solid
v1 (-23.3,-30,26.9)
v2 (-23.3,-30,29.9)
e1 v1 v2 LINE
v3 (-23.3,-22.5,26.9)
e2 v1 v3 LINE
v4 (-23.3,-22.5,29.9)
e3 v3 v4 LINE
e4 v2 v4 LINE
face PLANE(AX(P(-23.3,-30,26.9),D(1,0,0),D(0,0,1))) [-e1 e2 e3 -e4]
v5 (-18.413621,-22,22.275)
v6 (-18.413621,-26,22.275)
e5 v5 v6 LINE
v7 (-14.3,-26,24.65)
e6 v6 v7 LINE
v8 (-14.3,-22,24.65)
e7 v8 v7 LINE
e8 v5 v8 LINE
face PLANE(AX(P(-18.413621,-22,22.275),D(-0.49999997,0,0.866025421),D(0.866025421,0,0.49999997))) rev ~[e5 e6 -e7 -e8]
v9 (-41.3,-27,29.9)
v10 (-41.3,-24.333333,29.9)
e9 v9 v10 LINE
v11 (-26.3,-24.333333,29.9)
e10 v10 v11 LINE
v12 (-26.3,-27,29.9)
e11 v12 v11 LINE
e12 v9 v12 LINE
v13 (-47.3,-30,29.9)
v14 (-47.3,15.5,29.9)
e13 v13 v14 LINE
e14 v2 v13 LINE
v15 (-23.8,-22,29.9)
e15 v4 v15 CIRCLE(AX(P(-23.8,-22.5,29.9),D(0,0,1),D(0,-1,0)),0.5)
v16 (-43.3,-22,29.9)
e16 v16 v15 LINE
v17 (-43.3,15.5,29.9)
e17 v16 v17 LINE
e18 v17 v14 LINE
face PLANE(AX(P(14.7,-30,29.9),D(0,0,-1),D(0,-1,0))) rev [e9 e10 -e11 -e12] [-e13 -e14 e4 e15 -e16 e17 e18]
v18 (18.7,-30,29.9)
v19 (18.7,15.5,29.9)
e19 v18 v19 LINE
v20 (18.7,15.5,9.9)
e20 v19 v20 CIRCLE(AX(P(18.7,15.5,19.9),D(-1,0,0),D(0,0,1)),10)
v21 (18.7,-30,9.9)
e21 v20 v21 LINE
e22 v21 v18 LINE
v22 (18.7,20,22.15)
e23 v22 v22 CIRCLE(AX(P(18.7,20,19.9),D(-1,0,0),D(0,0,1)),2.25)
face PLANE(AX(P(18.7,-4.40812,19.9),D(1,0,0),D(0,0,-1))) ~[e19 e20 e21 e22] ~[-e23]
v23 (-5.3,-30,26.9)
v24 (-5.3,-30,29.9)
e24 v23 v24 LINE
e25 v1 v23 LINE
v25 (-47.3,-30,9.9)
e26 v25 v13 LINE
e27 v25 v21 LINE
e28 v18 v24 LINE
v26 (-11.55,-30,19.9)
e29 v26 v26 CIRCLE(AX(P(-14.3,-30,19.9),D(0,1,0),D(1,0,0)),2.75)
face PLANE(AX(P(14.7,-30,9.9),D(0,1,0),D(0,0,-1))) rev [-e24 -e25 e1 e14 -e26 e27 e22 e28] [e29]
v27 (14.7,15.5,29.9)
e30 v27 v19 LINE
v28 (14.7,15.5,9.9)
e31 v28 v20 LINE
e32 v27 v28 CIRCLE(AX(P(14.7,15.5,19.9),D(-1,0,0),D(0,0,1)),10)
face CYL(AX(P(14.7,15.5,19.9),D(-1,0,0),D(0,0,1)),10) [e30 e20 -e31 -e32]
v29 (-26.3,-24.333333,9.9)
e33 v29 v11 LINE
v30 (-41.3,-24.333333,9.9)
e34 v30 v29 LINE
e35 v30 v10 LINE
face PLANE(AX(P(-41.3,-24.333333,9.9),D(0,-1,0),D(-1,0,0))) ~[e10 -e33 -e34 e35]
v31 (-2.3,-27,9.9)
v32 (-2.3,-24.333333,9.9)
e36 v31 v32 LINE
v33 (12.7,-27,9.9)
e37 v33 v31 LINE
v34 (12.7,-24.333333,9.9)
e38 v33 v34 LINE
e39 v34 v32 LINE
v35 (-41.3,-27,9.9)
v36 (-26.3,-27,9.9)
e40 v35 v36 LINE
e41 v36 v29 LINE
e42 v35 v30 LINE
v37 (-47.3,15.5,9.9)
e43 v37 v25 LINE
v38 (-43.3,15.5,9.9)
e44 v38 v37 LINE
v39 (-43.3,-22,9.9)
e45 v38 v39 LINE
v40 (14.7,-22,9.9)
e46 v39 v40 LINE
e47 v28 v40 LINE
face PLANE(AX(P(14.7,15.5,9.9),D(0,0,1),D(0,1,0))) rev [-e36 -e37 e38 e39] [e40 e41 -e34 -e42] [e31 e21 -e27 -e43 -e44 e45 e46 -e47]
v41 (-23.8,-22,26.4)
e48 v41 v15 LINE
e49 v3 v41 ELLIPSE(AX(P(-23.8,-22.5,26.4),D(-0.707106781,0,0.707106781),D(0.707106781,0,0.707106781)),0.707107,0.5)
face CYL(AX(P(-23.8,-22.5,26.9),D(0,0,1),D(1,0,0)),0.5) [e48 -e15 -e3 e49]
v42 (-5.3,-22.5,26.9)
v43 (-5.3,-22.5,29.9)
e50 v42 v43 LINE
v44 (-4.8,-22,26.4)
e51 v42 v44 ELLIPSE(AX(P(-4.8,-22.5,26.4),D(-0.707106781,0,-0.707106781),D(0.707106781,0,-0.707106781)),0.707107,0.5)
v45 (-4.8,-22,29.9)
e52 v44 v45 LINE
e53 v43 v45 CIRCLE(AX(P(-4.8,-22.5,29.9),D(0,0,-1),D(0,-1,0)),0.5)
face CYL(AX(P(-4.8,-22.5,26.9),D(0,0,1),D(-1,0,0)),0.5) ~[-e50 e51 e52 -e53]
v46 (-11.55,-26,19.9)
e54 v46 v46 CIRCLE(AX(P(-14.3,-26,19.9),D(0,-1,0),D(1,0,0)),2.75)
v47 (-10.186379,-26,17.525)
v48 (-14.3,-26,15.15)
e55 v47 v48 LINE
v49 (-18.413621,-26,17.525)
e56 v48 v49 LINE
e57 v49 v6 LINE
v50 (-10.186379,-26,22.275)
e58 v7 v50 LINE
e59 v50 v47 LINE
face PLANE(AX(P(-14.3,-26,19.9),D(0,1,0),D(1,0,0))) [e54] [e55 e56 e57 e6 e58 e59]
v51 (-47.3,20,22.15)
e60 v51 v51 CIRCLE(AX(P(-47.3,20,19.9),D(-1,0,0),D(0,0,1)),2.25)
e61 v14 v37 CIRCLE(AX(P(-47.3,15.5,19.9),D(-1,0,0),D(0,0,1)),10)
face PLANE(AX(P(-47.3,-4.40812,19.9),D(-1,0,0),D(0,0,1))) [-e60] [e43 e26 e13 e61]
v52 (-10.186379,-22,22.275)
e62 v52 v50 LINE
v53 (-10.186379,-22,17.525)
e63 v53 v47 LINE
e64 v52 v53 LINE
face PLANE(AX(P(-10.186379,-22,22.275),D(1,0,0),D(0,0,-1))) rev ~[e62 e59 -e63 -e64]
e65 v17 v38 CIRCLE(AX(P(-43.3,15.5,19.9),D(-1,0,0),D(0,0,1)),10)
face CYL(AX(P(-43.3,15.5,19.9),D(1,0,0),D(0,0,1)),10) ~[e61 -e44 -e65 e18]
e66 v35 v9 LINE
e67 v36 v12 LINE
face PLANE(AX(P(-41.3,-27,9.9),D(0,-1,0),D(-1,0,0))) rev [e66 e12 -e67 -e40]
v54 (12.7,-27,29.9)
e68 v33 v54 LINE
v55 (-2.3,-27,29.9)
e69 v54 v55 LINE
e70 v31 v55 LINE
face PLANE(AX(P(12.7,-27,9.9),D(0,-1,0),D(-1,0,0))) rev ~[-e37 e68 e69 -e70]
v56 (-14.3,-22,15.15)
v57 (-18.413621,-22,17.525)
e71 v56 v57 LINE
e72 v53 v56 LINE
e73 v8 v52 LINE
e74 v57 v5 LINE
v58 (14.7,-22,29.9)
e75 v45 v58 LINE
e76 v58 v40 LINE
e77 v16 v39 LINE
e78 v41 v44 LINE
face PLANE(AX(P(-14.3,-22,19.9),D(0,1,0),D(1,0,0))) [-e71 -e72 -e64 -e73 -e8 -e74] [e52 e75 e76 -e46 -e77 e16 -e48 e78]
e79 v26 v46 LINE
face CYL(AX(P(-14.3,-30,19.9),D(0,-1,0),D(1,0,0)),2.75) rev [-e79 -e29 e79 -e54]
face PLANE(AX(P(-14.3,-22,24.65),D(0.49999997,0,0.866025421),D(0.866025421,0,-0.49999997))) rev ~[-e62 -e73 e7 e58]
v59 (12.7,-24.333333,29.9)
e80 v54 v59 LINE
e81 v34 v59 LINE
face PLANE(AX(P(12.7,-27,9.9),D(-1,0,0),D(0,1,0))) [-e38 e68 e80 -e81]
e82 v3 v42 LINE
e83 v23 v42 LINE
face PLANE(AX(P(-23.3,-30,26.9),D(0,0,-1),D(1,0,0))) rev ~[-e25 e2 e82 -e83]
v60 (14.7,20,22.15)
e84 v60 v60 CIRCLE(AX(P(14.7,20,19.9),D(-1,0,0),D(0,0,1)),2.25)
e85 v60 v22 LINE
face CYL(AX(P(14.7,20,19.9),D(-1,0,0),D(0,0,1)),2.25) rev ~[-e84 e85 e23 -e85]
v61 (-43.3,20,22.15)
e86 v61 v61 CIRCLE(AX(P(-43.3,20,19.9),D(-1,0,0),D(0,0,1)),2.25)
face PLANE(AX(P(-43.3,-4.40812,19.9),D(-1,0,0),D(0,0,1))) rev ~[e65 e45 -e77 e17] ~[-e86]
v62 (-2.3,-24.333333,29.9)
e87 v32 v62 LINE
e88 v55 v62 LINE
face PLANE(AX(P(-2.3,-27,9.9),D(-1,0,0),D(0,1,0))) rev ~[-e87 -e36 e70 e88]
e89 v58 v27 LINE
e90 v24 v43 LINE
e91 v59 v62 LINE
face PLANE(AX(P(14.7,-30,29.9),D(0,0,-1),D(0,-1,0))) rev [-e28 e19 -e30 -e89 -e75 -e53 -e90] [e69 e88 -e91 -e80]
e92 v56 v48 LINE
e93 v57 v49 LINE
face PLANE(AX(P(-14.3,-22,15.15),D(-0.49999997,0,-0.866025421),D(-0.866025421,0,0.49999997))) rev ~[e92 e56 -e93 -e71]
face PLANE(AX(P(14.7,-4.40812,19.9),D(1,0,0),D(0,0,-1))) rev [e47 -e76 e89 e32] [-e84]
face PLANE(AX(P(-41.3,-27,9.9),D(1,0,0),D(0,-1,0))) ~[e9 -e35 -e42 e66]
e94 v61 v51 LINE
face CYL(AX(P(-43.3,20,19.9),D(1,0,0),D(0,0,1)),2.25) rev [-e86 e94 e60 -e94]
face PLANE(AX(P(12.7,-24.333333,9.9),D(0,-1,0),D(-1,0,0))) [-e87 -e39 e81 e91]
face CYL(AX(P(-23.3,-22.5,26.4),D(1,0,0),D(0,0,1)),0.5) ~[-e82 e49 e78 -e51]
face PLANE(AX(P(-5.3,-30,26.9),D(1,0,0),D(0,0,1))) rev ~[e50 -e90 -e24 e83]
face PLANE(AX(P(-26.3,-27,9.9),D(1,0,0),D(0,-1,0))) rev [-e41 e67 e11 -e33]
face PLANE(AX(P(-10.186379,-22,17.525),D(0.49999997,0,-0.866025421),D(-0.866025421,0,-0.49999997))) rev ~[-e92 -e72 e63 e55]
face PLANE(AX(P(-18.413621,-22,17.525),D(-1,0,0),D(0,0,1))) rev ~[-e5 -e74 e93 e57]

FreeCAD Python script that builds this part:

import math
import FreeCAD as App
import Part
import Sketcher
Q = App.Units.Quantity


def edges_at(feature, points):
    """Names of the edges that pass closest to the given points."""
    edges = feature.Shape.Edges
    near = lambda p: min(range(len(edges)), key=lambda i: edges[i].distToShape(Part.Vertex(*p))[0])
    return sorted({f"Edge{near(p) + 1}" for p in points})

doc = App.newDocument("Part")
params = doc.addObject("Spreadsheet::Sheet", "Params")
for row, (alias, value) in enumerate([
    ("sketch1_diameter", "5.5 mm"),
    ("sketch1_width", "58 mm"),
    ("sketch1_height", "20 mm"),
    ("pad1_length", "8 mm"),
    ("sketch2_radius", "10 mm"),
    ("sketch2_diameter", "4.5 mm"),
    ("sketch2_width", "45.5 mm"),
    ("pad2_length", "4 mm"),
    ("sketch3_height", "4.75 mm"),
    ("pocket1_length", "4 mm"),
    ("sketch4_width", "15 mm"),
    ("pocket2_length", "20 mm"),
    ("sketch5_width", "18 mm"),
    ("sketch5_height", "3 mm"),
    ("pocket3_length", "8 mm"),
    ("fillet_radius", "0.5 mm"),
], start=1):
    params.set(f"A{row}", alias)
    params.set(f"B{row}", "=" + value)
    params.setAlias(f"B{row}", alias)

body = doc.addObject("PartDesign::Body", "Body")

# Sketch on XZ plane
sketch1 = body.newObject("Sketcher::SketchObject", "Sketch")
sketch1.AttachmentSupport = (doc.getObject("XZ_Plane"), [""])
sketch1.MapMode = "FlatFace"
sketch1.addGeometry([
    Part.LineSegment(App.Vector(-29, 10, 0), App.Vector(-29, -10, 0)),  # 0
    Part.LineSegment(App.Vector(-29, -10, 0), App.Vector(29, -10, 0)),  # 1
    Part.LineSegment(App.Vector(29, -10, 0), App.Vector(29, 10, 0)),  # 2
    Part.LineSegment(App.Vector(29, 10, 0), App.Vector(-29, 10, 0)),  # 3
    Part.Circle(App.Vector(0, 0, 0), App.Vector(0, 0, 1), 2.8),  # 4
], False)
sketch1.addConstraint([
    Sketcher.Constraint("Coincident", 0, 2, 1, 1),
    Sketcher.Constraint("Coincident", 1, 2, 2, 1),
    Sketcher.Constraint("Coincident", 2, 2, 3, 1),
    Sketcher.Constraint("Coincident", 3, 2, 0, 1),
    Sketcher.Constraint("Vertical", 0),
    Sketcher.Constraint("Horizontal", 1),
    Sketcher.Constraint("Vertical", 2),
    Sketcher.Constraint("Horizontal", 3),
    Sketcher.Constraint("Coincident", 4, 3, -1, 1),
    Sketcher.Constraint("Symmetric", 0, 2, 2, 2, -1, 1),
    Sketcher.Constraint("Diameter", 4, 5.5),
    Sketcher.Constraint("DistanceX", 1, 1, 1, 2, 58.0),
    Sketcher.Constraint("DistanceY", 0, 2, 0, 1, 20.0),
])
sketch1.setExpression("Constraints[10]", "Params.sketch1_diameter")
sketch1.setExpression("Constraints[11]", "Params.sketch1_width")
sketch1.setExpression("Constraints[12]", "Params.sketch1_height")
pad1 = body.newObject("PartDesign::Pad", "Pad")
pad1.Profile = sketch1
pad1.setExpression("Length", "Params.pad1_length")

# Sketch on YZ plane
sketch2 = body.newObject("Sketcher::SketchObject", "Sketch001")
sketch2.AttachmentSupport = (doc.getObject("YZ_Plane"), [""])
sketch2.MapMode = "FlatFace"
sketch2.AttachmentOffset = App.Placement(App.Vector(0, 0, -29), App.Rotation())
sketch2.addGeometry([
    Part.LineSegment(App.Vector(0, 10, 0), App.Vector(0, -10, 0)),  # 0
    Part.LineSegment(App.Vector(0, -10, 0), App.Vector(-45.5, -10, 0)),  # 1
    Part.ArcOfCircle(Part.Circle(App.Vector(-45.5, 0, 0), App.Vector(0, 0, 1), 10), math.radians(90), math.radians(270)),  # 2
    Part.LineSegment(App.Vector(-45.5, 10, 0), App.Vector(0, 10, 0)),  # 3
    Part.Circle(App.Vector(-50, 0, 0), App.Vector(0, 0, 1), 2.2),  # 4
], False)
sketch2.addConstraint([
    Sketcher.Constraint("Coincident", 0, 2, 1, 1),
    Sketcher.Constraint("Tangent", 1, 2, 2, 2),
    Sketcher.Constraint("Tangent", 2, 1, 3, 1),
    Sketcher.Constraint("Coincident", 3, 2, 0, 1),
    Sketcher.Constraint("Vertical", 0),
    Sketcher.Constraint("Horizontal", 1),
    Sketcher.Constraint("Horizontal", 3),
    Sketcher.Constraint("Symmetric", 0, 2, 3, 2, -1, 1),
    Sketcher.Constraint("PointOnObject", 4, 3, -1),
    Sketcher.Constraint("Radius", 2, 10.0),
    Sketcher.Constraint("Diameter", 4, 4.5),
    Sketcher.Constraint("DistanceX", 1, 2, 1, 1, 45.5),
    Sketcher.Constraint("DistanceX", 4, 3, -1, 1, 50.0),
])
sketch2.setExpression("Constraints[9]", "Params.sketch2_radius")
sketch2.setExpression("Constraints[10]", "Params.sketch2_diameter")
sketch2.setExpression("Constraints[11]", "Params.sketch2_width")
pad2 = body.newObject("PartDesign::Pad", "Pad001")
pad2.Profile = sketch2
pad2.setExpression("Length", "Params.pad2_length")
pad2.Reversed = True
doc.recompute()

mirrored = body.newObject("PartDesign::Mirrored", "Mirrored")
mirrored.Originals = [pad2]
mirrored.MirrorPlane = (doc.getObject("YZ_Plane"), [""])
body.Tip = mirrored

# Sketch on XZ plane
sketch3 = body.newObject("Sketcher::SketchObject", "Sketch002")
sketch3.AttachmentSupport = (doc.getObject("XZ_Plane"), [""])
sketch3.MapMode = "FlatFace"
sketch3.AttachmentOffset = App.Placement(App.Vector(0, 0, 8), App.Rotation())
sketch3.addGeometry([
    Part.LineSegment(App.Vector(4.1, 2.4, 0), App.Vector(0, 4.8, 0)),  # 0
    Part.LineSegment(App.Vector(0, 4.8, 0), App.Vector(-4.1, 2.4, 0)),  # 1
    Part.LineSegment(App.Vector(-4.1, 2.4, 0), App.Vector(-4.1, -2.4, 0)),  # 2
    Part.LineSegment(App.Vector(-4.1, -2.4, 0), App.Vector(0, -4.8, 0)),  # 3
    Part.LineSegment(App.Vector(0, -4.8, 0), App.Vector(4.1, -2.4, 0)),  # 4
    Part.LineSegment(App.Vector(4.1, -2.4, 0), App.Vector(4.1, 2.4, 0)),  # 5
], False)
sketch3.addConstraint([
    Sketcher.Constraint("Coincident", 0, 2, 1, 1),
    Sketcher.Constraint("Coincident", 1, 2, 2, 1),
    Sketcher.Constraint("Coincident", 2, 2, 3, 1),
    Sketcher.Constraint("Coincident", 3, 2, 4, 1),
    Sketcher.Constraint("Coincident", 4, 2, 5, 1),
    Sketcher.Constraint("Coincident", 5, 2, 0, 1),
    Sketcher.Constraint("Vertical", 2),
    Sketcher.Constraint("Vertical", 5),
    Sketcher.Constraint("Symmetric", 0, 2, 3, 2, -1, 1),
    Sketcher.Constraint("Symmetric", 1, 2, 4, 2, -1, 1),
    Sketcher.Constraint("PointOnObject", 0, 2, -2),
    Sketcher.Constraint("Parallel", 0, 3),
    Sketcher.Constraint("Horizontal", 2, 2, 4, 2),
    Sketcher.Constraint("Angle", 0, Q("150.000002 deg")),
    Sketcher.Constraint("DistanceY", 2, 2, 2, 1, 4.75),
    Sketcher.Constraint("DistanceY", 3, 2, 0, 2, 9.5),
])
sketch3.setExpression("Constraints[14]", "Params.sketch3_height")
pocket1 = body.newObject("PartDesign::Pocket", "Pocket")
pocket1.Profile = sketch3
pocket1.setExpression("Length", "Params.pocket1_length")

# Sketch on XY plane
sketch4 = body.newObject("Sketcher::SketchObject", "Sketch003")
sketch4.AttachmentSupport = (doc.getObject("XY_Plane"), [""])
sketch4.MapMode = "FlatFace"
sketch4.AttachmentOffset = App.Placement(App.Vector(0, 0, 10), App.Rotation())
sketch4.addGeometry([
    Part.LineSegment(App.Vector(27, -5.7, 0), App.Vector(27, -3, 0)),
    Part.LineSegment(App.Vector(27, -3, 0), App.Vector(12, -3, 0)),
    Part.LineSegment(App.Vector(12, -3, 0), App.Vector(12, -5.7, 0)),
    Part.LineSegment(App.Vector(12, -5.7, 0), App.Vector(27, -5.7, 0)),
], False)
sketch4.addConstraint([
    Sketcher.Constraint("Coincident", 0, 2, 1, 1),
    Sketcher.Constraint("Coincident", 1, 2, 2, 1),
    Sketcher.Constraint("Coincident", 2, 2, 3, 1),
    Sketcher.Constraint("Coincident", 3, 2, 0, 1),
    Sketcher.Constraint("Vertical", 0),
    Sketcher.Constraint("Horizontal", 1),
    Sketcher.Constraint("Vertical", 2),
    Sketcher.Constraint("Horizontal", 3),
    Sketcher.Constraint("DistanceX", 1, 2, 1, 1, 15.0),
    Sketcher.Constraint("DistanceX", -1, 1, 0, 2, 27.0),
    Sketcher.Constraint("DistanceY", 0, 2, -1, 1, 3.000001),
    Sketcher.Constraint("DistanceY", 0, 1, 0, 2, 2.666667),
])
sketch4.setExpression("Constraints[8]", "Params.sketch4_width")
pocket2 = body.newObject("PartDesign::Pocket", "Pocket001")
pocket2.Profile = sketch4
pocket2.setExpression("Length", "Params.pocket2_length")
doc.recompute()

mirrored2 = body.newObject("PartDesign::Mirrored", "Mirrored001")
mirrored2.Originals = [pocket2]
mirrored2.MirrorPlane = (doc.getObject("YZ_Plane"), [""])
body.Tip = mirrored2

# Sketch on XZ plane
sketch5 = body.newObject("Sketcher::SketchObject", "Sketch004")
sketch5.AttachmentSupport = (doc.getObject("XZ_Plane"), [""])
sketch5.MapMode = "FlatFace"
sketch5.addGeometry([
    Part.LineSegment(App.Vector(-9, -10, 0), App.Vector(-9, -7, 0)),
    Part.LineSegment(App.Vector(-9, -7, 0), App.Vector(9, -7, 0)),
    Part.LineSegment(App.Vector(9, -7, 0), App.Vector(9, -10, 0)),
    Part.LineSegment(App.Vector(9, -10, 0), App.Vector(-9, -10, 0)),
], False)
sketch5.addConstraint([
    Sketcher.Constraint("Coincident", 0, 2, 1, 1),
    Sketcher.Constraint("Coincident", 1, 2, 2, 1),
    Sketcher.Constraint("Coincident", 2, 2, 3, 1),
    Sketcher.Constraint("Coincident", 3, 2, 0, 1),
    Sketcher.Constraint("Vertical", 0),
    Sketcher.Constraint("Horizontal", 1),
    Sketcher.Constraint("Vertical", 2),
    Sketcher.Constraint("Horizontal", 3),
    Sketcher.Constraint("DistanceX", 1, 1, 1, 2, 18.0),
    Sketcher.Constraint("DistanceY", 0, 1, 0, 2, 3.0),
    Sketcher.Constraint("DistanceX", 0, 2, -1, 1, 9.0),
    Sketcher.Constraint("DistanceY", 0, 2, -1, 1, 7.0),
])
sketch5.setExpression("Constraints[8]", "Params.sketch5_width")
sketch5.setExpression("Constraints[9]", "Params.sketch5_height")
pocket3 = body.newObject("PartDesign::Pocket", "Pocket002")
pocket3.Profile = sketch5
pocket3.setExpression("Length", "Params.pocket3_length")
pocket3.Reversed = True
doc.recompute()

fillet = body.newObject("PartDesign::Fillet", "Fillet")
fillet.Base = (pocket3, edges_at(pocket3, [(0, -8, -7), (9, -8, -8.5), (-9, -8, -8.5)]))
fillet.setExpression("Radius", "Params.fillet_radius")
body2 = doc.addObject("PartDesign::Body", "Body001")
doc.recompute()

body.Placement = App.Placement(App.Vector(-14.3, -30, 19.9), App.Rotation(App.Vector(1, 0, 0), 180))
boolean = body2.newObject("PartDesign::Boolean", "Boolean")
boolean.Type = "Fuse"
boolean.addObjects([body])

doc.recompute()
